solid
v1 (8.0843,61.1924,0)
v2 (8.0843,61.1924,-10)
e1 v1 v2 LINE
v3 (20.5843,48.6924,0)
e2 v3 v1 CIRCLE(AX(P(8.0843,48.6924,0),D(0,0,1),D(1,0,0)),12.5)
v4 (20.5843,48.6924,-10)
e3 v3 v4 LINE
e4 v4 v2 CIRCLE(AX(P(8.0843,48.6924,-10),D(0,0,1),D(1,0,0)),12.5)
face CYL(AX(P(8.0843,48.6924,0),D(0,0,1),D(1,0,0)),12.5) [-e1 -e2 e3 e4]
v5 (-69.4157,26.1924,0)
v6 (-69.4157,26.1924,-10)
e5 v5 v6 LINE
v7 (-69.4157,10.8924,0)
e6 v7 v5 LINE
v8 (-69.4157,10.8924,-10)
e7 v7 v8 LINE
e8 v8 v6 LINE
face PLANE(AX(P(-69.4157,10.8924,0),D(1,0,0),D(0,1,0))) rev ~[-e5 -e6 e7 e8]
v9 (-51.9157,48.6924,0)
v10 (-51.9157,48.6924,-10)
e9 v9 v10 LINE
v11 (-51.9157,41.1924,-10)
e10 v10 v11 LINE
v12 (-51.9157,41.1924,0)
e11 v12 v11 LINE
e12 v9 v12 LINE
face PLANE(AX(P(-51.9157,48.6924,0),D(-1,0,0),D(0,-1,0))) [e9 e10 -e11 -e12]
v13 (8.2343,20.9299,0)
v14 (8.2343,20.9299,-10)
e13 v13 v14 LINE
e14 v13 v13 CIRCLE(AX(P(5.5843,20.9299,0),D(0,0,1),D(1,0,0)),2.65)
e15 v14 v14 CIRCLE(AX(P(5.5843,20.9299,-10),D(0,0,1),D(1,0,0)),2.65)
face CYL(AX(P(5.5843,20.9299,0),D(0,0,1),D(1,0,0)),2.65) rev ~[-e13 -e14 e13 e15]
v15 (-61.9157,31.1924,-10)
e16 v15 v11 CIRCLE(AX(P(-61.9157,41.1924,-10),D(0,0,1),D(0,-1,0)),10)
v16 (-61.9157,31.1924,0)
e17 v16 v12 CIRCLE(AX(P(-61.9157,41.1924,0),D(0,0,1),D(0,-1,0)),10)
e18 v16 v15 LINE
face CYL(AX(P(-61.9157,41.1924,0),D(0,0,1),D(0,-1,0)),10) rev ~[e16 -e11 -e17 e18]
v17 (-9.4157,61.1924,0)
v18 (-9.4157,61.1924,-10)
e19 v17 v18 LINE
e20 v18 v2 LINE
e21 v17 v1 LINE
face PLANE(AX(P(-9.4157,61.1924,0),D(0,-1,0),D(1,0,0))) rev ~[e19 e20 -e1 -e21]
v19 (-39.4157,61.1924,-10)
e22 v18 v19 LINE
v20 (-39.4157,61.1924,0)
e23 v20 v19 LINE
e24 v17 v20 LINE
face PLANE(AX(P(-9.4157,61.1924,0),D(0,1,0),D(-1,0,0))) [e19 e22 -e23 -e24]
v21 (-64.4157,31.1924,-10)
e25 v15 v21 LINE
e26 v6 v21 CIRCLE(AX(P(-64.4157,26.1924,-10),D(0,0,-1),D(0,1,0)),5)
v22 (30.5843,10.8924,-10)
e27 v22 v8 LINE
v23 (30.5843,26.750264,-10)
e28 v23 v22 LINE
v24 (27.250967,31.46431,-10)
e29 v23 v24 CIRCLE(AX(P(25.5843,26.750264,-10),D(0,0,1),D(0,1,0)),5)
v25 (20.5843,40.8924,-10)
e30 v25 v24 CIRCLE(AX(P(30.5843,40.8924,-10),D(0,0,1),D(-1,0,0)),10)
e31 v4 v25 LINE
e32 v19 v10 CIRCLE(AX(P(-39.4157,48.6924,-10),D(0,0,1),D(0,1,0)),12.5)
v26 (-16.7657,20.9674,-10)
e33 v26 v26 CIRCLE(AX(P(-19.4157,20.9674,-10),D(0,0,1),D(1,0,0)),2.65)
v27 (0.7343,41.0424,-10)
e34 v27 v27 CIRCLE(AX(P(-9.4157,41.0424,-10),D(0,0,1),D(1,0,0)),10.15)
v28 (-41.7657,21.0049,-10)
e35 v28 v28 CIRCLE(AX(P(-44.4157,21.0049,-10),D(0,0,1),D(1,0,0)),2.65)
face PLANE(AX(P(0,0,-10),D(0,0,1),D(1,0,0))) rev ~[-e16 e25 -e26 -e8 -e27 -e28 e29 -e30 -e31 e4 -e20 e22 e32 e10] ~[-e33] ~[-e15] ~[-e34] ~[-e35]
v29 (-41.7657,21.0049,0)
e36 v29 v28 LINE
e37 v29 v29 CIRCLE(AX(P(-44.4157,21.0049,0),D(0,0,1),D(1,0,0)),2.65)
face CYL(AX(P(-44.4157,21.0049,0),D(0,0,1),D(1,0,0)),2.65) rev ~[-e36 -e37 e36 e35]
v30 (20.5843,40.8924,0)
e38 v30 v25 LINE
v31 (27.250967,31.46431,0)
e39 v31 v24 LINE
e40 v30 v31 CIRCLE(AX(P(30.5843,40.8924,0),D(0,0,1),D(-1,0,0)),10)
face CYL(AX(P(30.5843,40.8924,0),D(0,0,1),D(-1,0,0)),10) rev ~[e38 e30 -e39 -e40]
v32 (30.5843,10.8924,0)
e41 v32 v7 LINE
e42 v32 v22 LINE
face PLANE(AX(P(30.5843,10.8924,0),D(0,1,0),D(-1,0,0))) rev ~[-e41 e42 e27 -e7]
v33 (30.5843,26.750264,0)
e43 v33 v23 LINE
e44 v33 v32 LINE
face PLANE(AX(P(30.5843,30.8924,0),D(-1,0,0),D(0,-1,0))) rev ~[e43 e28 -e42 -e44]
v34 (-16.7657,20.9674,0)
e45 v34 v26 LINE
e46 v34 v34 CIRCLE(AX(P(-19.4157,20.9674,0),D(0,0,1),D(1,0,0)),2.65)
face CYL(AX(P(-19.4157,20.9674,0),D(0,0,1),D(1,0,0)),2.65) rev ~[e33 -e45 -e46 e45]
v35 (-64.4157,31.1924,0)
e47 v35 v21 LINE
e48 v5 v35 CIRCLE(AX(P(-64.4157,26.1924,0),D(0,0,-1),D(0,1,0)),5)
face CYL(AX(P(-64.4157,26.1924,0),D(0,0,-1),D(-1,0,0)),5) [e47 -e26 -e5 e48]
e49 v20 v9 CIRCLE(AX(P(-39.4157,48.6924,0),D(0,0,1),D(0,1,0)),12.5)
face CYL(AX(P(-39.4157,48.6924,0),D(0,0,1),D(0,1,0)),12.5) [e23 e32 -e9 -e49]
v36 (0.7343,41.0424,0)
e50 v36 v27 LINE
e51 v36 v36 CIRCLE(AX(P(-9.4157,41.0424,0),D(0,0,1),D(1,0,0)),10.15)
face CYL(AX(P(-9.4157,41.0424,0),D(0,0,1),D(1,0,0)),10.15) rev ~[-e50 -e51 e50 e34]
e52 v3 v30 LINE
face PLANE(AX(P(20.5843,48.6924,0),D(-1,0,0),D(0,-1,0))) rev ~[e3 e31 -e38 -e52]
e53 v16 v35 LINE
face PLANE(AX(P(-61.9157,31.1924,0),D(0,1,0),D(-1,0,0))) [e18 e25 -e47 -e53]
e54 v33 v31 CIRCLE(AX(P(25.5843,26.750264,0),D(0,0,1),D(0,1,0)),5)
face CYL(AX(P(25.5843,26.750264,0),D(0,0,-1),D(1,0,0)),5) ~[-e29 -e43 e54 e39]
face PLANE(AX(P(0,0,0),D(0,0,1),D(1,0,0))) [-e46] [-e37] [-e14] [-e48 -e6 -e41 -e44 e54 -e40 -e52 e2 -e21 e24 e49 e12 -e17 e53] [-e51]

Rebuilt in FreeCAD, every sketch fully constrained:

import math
import FreeCAD as App
import Part
import Sketcher
Q = App.Units.Quantity


def edges_at(feature, points):
    """Names of the edges that pass closest to the given points."""
    edges = feature.Shape.Edges
    near = lambda p: min(range(len(edges)), key=lambda i: edges[i].distToShape(Part.Vertex(*p))[0])
    return sorted({f"Edge{near(p) + 1}" for p in points})

doc = App.newDocument("Part")
body = doc.addObject("PartDesign::Body", "Body")

# Sketch on XY plane
sketch1 = body.newObject("Sketcher::SketchObject", "Sketch")
sketch1.AttachmentSupport = (doc.getObject("XY_Plane"), [""])
sketch1.MapMode = "FlatFace"
sketch1.addGeometry(Part.LineSegment(App.Vector(30.6, 10.9, 0), App.Vector(30.6, 30.9, 0)), False)
sketch1.addGeometry(Part.ArcOfCircle(Part.Circle(App.Vector(30.6, 40.9, 0), App.Vector(0, 0, 1), 10), math.radians(180), math.radians(270)), False)
sketch1.addGeometry(Part.LineSegment(App.Vector(20.6, 40.9, 0), App.Vector(20.6, 48.7, 0)), False)
sketch1.addGeometry(Part.ArcOfCircle(Part.Circle(App.Vector(8.1, 48.7, 0), App.Vector(0, 0, 1), 12.5), math.radians(0), math.radians(90)), False)
sketch1.addGeometry(Part.LineSegment(App.Vector(8.1, 61.2, 0), App.Vector(-39.4, 61.2, 0)), False)
sketch1.addGeometry(Part.ArcOfCircle(Part.Circle(App.Vector(-39.4, 48.7, 0), App.Vector(0, 0, 1), 12.5), math.radians(90), math.radians(180)), False)
sketch1.addGeometry(Part.LineSegment(App.Vector(-51.9, 48.7, 0), App.Vector(-51.9, 41.2, 0)), False)
sketch1.addGeometry(Part.ArcOfCircle(Part.Circle(App.Vector(-61.9, 41.2, 0), App.Vector(0, 0, 1), 10), math.radians(-90), math.radians(0)), False)
sketch1.addGeometry(Part.LineSegment(App.Vector(-61.9, 31.2, 0), App.Vector(-69.4, 31.2, 0)), False)
sketch1.addGeometry(Part.LineSegment(App.Vector(-69.4, 31.2, 0), App.Vector(-69.4, 10.9, 0)), False)
sketch1.addGeometry(Part.LineSegment(App.Vector(-69.4, 10.9, 0), App.Vector(30.6, 10.9, 0)), False)
sketch1.addGeometry(Part.Circle(App.Vector(-44.4, 21, 0), App.Vector(0, 0, 1), 2.6), False)
sketch1.addGeometry(Part.Circle(App.Vector(-19.4, 21, 0), App.Vector(0, 0, 1), 2.6), False)
sketch1.addGeometry(Part.Circle(App.Vector(5.6, 20.9, 0), App.Vector(0, 0, 1), 2.6), False)
sketch1.addGeometry(Part.Circle(App.Vector(-9.4, 41, 0), App.Vector(0, 0, 1), 10.2), False)
sketch1.addConstraint(Sketcher.Constraint("Coincident", 0, 2, 1, 2))
sketch1.addConstraint(Sketcher.Constraint("Tangent", 1, 1, 2, 1))
sketch1.addConstraint(Sketcher.Constraint("Tangent", 2, 2, 3, 1))
sketch1.addConstraint(Sketcher.Constraint("Tangent", 3, 2, 4, 1))
sketch1.addConstraint(Sketcher.Constraint("Tangent", 4, 2, 5, 1))
sketch1.addConstraint(Sketcher.Constraint("Tangent", 5, 2, 6, 1))
sketch1.addConstraint(Sketcher.Constraint("Tangent", 6, 2, 7, 2))
sketch1.addConstraint(Sketcher.Constraint("Tangent", 7, 1, 8, 1))
sketch1.addConstraint(Sketcher.Constraint("Coincident", 8, 2, 9, 1))
sketch1.addConstraint(Sketcher.Constraint("Coincident", 9, 2, 10, 1))
sketch1.addConstraint(Sketcher.Constraint("Coincident", 10, 2, 0, 1))
sketch1.addConstraint(Sketcher.Constraint("Vertical", 0))
sketch1.addConstraint(Sketcher.Constraint("Vertical", 2))
sketch1.addConstraint(Sketcher.Constraint("Horizontal", 4))
sketch1.addConstraint(Sketcher.Constraint("Vertical", 6))
sketch1.addConstraint(Sketcher.Constraint("Horizontal", 8))
sketch1.addConstraint(Sketcher.Constraint("Vertical", 9))
sketch1.addConstraint(Sketcher.Constraint("Horizontal", 10))
sketch1.addConstraint(Sketcher.Constraint("Equal", 3, 5))
sketch1.addConstraint(Sketcher.Constraint("Equal", 1, 7))
sketch1.addConstraint(Sketcher.Constraint("Equal", 11, 12))
sketch1.addConstraint(Sketcher.Constraint("Equal", 12, 13))
sketch1.addConstraint(Sketcher.Constraint("Vertical", 1, 3, 0, 2))
sketch1.addConstraint(Sketcher.Constraint("Equal", 8, 6))
sketch1.addConstraint(Sketcher.Constraint("Radius", 1, Q("10 mm")))
sketch1.addConstraint(Sketcher.Constraint("Diameter", 11, Q("5.3 mm")))
sketch1.addConstraint(Sketcher.Constraint("Diameter", 14, Q("20.3 mm")))
sketch1.addConstraint(Sketcher.Constraint("Radius", 3, Q("12.5 mm")))
sketch1.addConstraint(Sketcher.Constraint("DistanceX", 10, 1, 10, 2, Q("100 mm")))
sketch1.addConstraint(Sketcher.Constraint("DistanceY", 0, 1, 0, 2, Q("20 mm")))
sketch1.addConstraint(Sketcher.Constraint("DistanceY", 9, 2, 9, 1, Q("20.3 mm")))
sketch1.addConstraint(Sketcher.Constraint("DistanceX", 5, 3, 12, 3, Q("20 mm")))
sketch1.addConstraint(Sketcher.Constraint("DistanceX", 12, 3, 14, 3, Q("10 mm")))
sketch1.addConstraint(Sketcher.Constraint("DistanceX", 14, 3, 1, 3, Q("40 mm")))
sketch1.addConstraint(Sketcher.Constraint("DistanceX", 11, 3, 5, 3, Q("5 mm")))
sketch1.addConstraint(Sketcher.Constraint("DistanceX", 12, 3, 13, 3, Q("25 mm")))
sketch1.addConstraint(Sketcher.Constraint("DistanceY", -1, 1, 13, 3, Q("20.93 mm")))
sketch1.addConstraint(Sketcher.Constraint("DistanceY", 14, 3, 3, 3, Q("7.65 mm")))
sketch1.addConstraint(Sketcher.Constraint("DistanceY", -1, 1, 11, 3, Q("21.005 mm")))
sketch1.addConstraint(Sketcher.Constraint("DistanceY", 12, 3, 5, 3, Q("27.725 mm")))
sketch1.addConstraint(Sketcher.Constraint("DistanceX", -1, 1, 1, 3, Q("30.5843 mm")))
sketch1.addConstraint(Sketcher.Constraint("DistanceY", -1, 1, 1, 3, Q("40.8924 mm")))
pad1 = body.newObject("PartDesign::Pad", "Pad")
pad1.Profile = sketch1
pad1.Length = 10
pad1.Reversed = True
doc.recompute()

fillet = body.newObject("PartDesign::Fillet", "Fillet")
fillet.Base = (pad1, edges_at(pad1, [(-69.416, 31.192, -5), (30.584, 30.892, -5)]))
fillet.Radius = 5

doc.recompute()
